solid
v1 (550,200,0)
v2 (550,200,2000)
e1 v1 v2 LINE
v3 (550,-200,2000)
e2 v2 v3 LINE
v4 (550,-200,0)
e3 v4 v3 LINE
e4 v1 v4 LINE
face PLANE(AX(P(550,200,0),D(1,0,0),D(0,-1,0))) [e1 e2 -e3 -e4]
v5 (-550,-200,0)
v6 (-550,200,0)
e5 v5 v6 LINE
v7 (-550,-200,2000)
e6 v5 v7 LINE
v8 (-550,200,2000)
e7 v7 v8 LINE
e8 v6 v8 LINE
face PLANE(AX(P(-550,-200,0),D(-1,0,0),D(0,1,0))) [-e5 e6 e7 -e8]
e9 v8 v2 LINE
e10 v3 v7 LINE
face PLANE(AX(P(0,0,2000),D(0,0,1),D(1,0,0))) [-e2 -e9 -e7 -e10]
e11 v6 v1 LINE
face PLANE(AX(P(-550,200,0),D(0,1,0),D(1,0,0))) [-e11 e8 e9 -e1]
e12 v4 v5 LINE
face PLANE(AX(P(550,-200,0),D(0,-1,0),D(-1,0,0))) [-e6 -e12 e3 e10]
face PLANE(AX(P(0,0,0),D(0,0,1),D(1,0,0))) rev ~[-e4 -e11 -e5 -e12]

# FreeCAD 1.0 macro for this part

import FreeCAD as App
import Part
import Sketcher

V = App.Vector

doc = App.newDocument("Part")
body = doc.addObject("PartDesign::Body", "Body")

sketch1 = body.newObject("Sketcher::SketchObject", "Sketch")
sketch1.AttachmentSupport = (doc.getObject("XY_Plane"), [""])
sketch1.MapMode = "FlatFace"
sketch1.addGeometry([
    Part.LineSegment(V(550, 200, 0), V(-550, 200, 0)),
    Part.LineSegment(V(-550, 200, 0), V(-550, -200, 0)),
    Part.LineSegment(V(-550, -200, 0), V(550, -200, 0)),
    Part.LineSegment(V(550, -200, 0), V(550, 200, 0)),
], False)
sketch1.addConstraint([
    Sketcher.Constraint("Coincident", 0, 2, 1, 1),
    Sketcher.Constraint("Coincident", 1, 2, 2, 1),
    Sketcher.Constraint("Coincident", 2, 2, 3, 1),
    Sketcher.Constraint("Coincident", 3, 2, 0, 1),
    Sketcher.Constraint("Horizontal", 0),
    Sketcher.Constraint("Vertical", 1),
    Sketcher.Constraint("Horizontal", 2),
    Sketcher.Constraint("Vertical", 3),
    Sketcher.Constraint("Symmetric", 0, 2, 2, 2, -1, 1),
    Sketcher.Constraint("DistanceX", 0, 2, 0, 1, 1100.0),
    Sketcher.Constraint("DistanceY", 1, 2, 1, 1, 400.0),
])
pad1 = body.newObject("PartDesign::Pad", "Pad")
pad1.Profile = sketch1
pad1.Length = 2000

doc.recompute()
